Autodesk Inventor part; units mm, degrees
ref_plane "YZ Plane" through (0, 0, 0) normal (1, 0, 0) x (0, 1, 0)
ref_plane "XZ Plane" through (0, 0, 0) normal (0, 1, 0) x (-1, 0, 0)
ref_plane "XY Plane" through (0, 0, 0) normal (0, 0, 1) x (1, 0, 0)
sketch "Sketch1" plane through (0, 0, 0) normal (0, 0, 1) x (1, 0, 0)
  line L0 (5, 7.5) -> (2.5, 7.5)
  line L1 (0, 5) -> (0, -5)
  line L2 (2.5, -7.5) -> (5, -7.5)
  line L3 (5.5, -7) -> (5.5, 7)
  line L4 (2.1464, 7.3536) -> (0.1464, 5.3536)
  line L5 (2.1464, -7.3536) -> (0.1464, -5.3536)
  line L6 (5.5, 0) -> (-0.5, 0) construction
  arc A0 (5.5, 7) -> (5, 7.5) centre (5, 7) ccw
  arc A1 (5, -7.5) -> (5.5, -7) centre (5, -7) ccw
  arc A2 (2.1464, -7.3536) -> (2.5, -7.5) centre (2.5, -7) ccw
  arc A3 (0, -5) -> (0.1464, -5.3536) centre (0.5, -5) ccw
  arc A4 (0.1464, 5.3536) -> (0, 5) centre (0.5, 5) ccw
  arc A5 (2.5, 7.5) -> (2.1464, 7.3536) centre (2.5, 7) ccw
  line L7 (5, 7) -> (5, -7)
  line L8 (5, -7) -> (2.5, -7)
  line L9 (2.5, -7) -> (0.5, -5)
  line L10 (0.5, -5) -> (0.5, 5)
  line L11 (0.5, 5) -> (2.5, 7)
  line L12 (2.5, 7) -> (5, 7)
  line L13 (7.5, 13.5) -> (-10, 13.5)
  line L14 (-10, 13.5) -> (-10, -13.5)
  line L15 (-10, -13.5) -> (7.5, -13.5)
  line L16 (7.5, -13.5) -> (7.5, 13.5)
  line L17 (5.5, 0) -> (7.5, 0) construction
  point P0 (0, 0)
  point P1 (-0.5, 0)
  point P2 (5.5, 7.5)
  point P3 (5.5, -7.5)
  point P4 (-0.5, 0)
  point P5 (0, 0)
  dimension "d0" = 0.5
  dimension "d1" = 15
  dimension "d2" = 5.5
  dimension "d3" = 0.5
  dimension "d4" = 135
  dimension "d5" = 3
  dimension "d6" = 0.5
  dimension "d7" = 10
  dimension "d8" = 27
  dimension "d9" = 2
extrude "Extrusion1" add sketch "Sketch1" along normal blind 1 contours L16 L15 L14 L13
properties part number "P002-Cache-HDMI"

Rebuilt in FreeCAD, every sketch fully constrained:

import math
import FreeCAD as App
import Part
import Sketcher
Q = App.Units.Quantity

doc = App.newDocument("Part")
body = doc.addObject("PartDesign::Body", "Body")

# Sketch on XY plane
sketch1 = doc.addObject("Sketcher::SketchObject", "Sketch")
body.addObject(sketch1)
sketch1.AttachmentSupport = (doc.XY_Plane, [""])
sketch1.MapMode = "FlatFace"
sketch1.addGeometry(Part.LineSegment(App.Vector(7.5, -13.5, 0), App.Vector(7.5, 13.5, 0)), False)
sketch1.addGeometry(Part.LineSegment(App.Vector(7.5, 13.5, 0), App.Vector(-10, 13.5, 0)), False)
sketch1.addGeometry(Part.LineSegment(App.Vector(-10, 13.5, 0), App.Vector(-10, -13.5, 0)), False)
sketch1.addGeometry(Part.LineSegment(App.Vector(-10, -13.5, 0), App.Vector(7.5, -13.5, 0)), False)
sketch1.addGeometry(Part.LineSegment(App.Vector(2.5, 7.5, 0), App.Vector(5, 7.5, 0)), False)
sketch1.addGeometry(Part.ArcOfCircle(Part.Circle(App.Vector(5, 7, 0), App.Vector(0, 0, 1), 0.5), math.radians(0), math.radians(90)), False)
sketch1.addGeometry(Part.LineSegment(App.Vector(5.5, 7, 0), App.Vector(5.5, -7, 0)), False)
sketch1.addGeometry(Part.ArcOfCircle(Part.Circle(App.Vector(5, -7, 0), App.Vector(0, 0, 1), 0.5), math.radians(-90), math.radians(0)), False)
sketch1.addGeometry(Part.LineSegment(App.Vector(5, -7.5, 0), App.Vector(2.5, -7.5, 0)), False)
sketch1.addGeometry(Part.ArcOfCircle(Part.Circle(App.Vector(2.5, -7, 0), App.Vector(0, 0, 1), 0.5), math.radians(-135), math.radians(-90)), False)
sketch1.addGeometry(Part.LineSegment(App.Vector(2.15, -7.35, 0), App.Vector(0.15, -5.35, 0)), False)
sketch1.addGeometry(Part.ArcOfCircle(Part.Circle(App.Vector(0.5, -5, 0), App.Vector(0, 0, 1), 0.5), math.radians(180), math.radians(225)), False)
sketch1.addGeometry(Part.LineSegment(App.Vector(0, -5, 0), App.Vector(0, 5, 0)), False)
sketch1.addGeometry(Part.ArcOfCircle(Part.Circle(App.Vector(0.5, 5, 0), App.Vector(0, 0, 1), 0.5), math.radians(135), math.radians(180)), False)
sketch1.addGeometry(Part.LineSegment(App.Vector(0.15, 5.35, 0), App.Vector(2.15, 7.35, 0)), False)
sketch1.addGeometry(Part.ArcOfCircle(Part.Circle(App.Vector(2.5, 7, 0), App.Vector(0, 0, 1), 0.5), math.radians(90), math.radians(135)), False)
sketch1.addConstraint(Sketcher.Constraint("Coincident", 0, 2, 1, 1))
sketch1.addConstraint(Sketcher.Constraint("Coincident", 1, 2, 2, 1))
sketch1.addConstraint(Sketcher.Constraint("Coincident", 2, 2, 3, 1))
sketch1.addConstraint(Sketcher.Constraint("Coincident", 3, 2, 0, 1))
sketch1.addConstraint(Sketcher.Constraint("Tangent", 4, 2, 5, 2))
sketch1.addConstraint(Sketcher.Constraint("Tangent", 5, 1, 6, 1))
sketch1.addConstraint(Sketcher.Constraint("Tangent", 6, 2, 7, 2))
sketch1.addConstraint(Sketcher.Constraint("Tangent", 7, 1, 8, 1))
sketch1.addConstraint(Sketcher.Constraint("Tangent", 8, 2, 9, 2))
sketch1.addConstraint(Sketcher.Constraint("Tangent", 9, 1, 10, 1))
sketch1.addConstraint(Sketcher.Constraint("Tangent", 10, 2, 11, 2))
sketch1.addConstraint(Sketcher.Constraint("Tangent", 11, 1, 12, 1))
sketch1.addConstraint(Sketcher.Constraint("Tangent", 12, 2, 13, 2))
sketch1.addConstraint(Sketcher.Constraint("Tangent", 13, 1, 14, 1))
sketch1.addConstraint(Sketcher.Constraint("Tangent", 14, 2, 15, 2))
sketch1.addConstraint(Sketcher.Constraint("Tangent", 15, 1, 4, 1))
sketch1.addConstraint(Sketcher.Constraint("Vertical", 0))
sketch1.addConstraint(Sketcher.Constraint("Horizontal", 1))
sketch1.addConstraint(Sketcher.Constraint("Vertical", 2))
sketch1.addConstraint(Sketcher.Constraint("Horizontal", 3))
sketch1.addConstraint(Sketcher.Constraint("Horizontal", 4))
sketch1.addConstraint(Sketcher.Constraint("Vertical", 6))
sketch1.addConstraint(Sketcher.Constraint("Horizontal", 8))
sketch1.addConstraint(Sketcher.Constraint("Vertical", 12))
sketch1.addConstraint(Sketcher.Constraint("Equal", 5, 7))
sketch1.addConstraint(Sketcher.Constraint("Equal", 7, 9))
sketch1.addConstraint(Sketcher.Constraint("Equal", 9, 11))
sketch1.addConstraint(Sketcher.Constraint("Equal", 11, 13))
sketch1.addConstraint(Sketcher.Constraint("Equal", 13, 15))
sketch1.addConstraint(Sketcher.Constraint("Symmetric", 11, 1, 12, 2, -1, 1))
sketch1.addConstraint(Sketcher.Constraint("Symmetric", 9, 3, 15, 3, -1))
sketch1.addConstraint(Sketcher.Constraint("Perpendicular", 10, 14))
sketch1.addConstraint(Sketcher.Constraint("Radius", 5, Q("0.5 mm")))
sketch1.addConstraint(Sketcher.Constraint("DistanceY", 0, 1, 0, 2, Q("27 mm")))
sketch1.addConstraint(Sketcher.Constraint("DistanceY", 12, 1, 12, 2, Q("10 mm")))
sketch1.addConstraint(Sketcher.Constraint("DistanceX", 1, 2, -1, 1, Q("10 mm")))
sketch1.addConstraint(Sketcher.Constraint("DistanceX", 11, 3, 9, 3, Q("2 mm")))
sketch1.addConstraint(Sketcher.Constraint("DistanceX", 1, 2, 5, 3, Q("15 mm")))
sketch1.addConstraint(Sketcher.Constraint("DistanceX", 5, 1, 0, 2, Q("2 mm")))
sketch1.addConstraint(Sketcher.Constraint("DistanceY", 4, 2, 0, 2, Q("6 mm")))
pad1 = doc.addObject("PartDesign::Pad", "Pad")
body.addObject(pad1)
pad1.Profile = sketch1
pad1.Length = 1

doc.recompute()
